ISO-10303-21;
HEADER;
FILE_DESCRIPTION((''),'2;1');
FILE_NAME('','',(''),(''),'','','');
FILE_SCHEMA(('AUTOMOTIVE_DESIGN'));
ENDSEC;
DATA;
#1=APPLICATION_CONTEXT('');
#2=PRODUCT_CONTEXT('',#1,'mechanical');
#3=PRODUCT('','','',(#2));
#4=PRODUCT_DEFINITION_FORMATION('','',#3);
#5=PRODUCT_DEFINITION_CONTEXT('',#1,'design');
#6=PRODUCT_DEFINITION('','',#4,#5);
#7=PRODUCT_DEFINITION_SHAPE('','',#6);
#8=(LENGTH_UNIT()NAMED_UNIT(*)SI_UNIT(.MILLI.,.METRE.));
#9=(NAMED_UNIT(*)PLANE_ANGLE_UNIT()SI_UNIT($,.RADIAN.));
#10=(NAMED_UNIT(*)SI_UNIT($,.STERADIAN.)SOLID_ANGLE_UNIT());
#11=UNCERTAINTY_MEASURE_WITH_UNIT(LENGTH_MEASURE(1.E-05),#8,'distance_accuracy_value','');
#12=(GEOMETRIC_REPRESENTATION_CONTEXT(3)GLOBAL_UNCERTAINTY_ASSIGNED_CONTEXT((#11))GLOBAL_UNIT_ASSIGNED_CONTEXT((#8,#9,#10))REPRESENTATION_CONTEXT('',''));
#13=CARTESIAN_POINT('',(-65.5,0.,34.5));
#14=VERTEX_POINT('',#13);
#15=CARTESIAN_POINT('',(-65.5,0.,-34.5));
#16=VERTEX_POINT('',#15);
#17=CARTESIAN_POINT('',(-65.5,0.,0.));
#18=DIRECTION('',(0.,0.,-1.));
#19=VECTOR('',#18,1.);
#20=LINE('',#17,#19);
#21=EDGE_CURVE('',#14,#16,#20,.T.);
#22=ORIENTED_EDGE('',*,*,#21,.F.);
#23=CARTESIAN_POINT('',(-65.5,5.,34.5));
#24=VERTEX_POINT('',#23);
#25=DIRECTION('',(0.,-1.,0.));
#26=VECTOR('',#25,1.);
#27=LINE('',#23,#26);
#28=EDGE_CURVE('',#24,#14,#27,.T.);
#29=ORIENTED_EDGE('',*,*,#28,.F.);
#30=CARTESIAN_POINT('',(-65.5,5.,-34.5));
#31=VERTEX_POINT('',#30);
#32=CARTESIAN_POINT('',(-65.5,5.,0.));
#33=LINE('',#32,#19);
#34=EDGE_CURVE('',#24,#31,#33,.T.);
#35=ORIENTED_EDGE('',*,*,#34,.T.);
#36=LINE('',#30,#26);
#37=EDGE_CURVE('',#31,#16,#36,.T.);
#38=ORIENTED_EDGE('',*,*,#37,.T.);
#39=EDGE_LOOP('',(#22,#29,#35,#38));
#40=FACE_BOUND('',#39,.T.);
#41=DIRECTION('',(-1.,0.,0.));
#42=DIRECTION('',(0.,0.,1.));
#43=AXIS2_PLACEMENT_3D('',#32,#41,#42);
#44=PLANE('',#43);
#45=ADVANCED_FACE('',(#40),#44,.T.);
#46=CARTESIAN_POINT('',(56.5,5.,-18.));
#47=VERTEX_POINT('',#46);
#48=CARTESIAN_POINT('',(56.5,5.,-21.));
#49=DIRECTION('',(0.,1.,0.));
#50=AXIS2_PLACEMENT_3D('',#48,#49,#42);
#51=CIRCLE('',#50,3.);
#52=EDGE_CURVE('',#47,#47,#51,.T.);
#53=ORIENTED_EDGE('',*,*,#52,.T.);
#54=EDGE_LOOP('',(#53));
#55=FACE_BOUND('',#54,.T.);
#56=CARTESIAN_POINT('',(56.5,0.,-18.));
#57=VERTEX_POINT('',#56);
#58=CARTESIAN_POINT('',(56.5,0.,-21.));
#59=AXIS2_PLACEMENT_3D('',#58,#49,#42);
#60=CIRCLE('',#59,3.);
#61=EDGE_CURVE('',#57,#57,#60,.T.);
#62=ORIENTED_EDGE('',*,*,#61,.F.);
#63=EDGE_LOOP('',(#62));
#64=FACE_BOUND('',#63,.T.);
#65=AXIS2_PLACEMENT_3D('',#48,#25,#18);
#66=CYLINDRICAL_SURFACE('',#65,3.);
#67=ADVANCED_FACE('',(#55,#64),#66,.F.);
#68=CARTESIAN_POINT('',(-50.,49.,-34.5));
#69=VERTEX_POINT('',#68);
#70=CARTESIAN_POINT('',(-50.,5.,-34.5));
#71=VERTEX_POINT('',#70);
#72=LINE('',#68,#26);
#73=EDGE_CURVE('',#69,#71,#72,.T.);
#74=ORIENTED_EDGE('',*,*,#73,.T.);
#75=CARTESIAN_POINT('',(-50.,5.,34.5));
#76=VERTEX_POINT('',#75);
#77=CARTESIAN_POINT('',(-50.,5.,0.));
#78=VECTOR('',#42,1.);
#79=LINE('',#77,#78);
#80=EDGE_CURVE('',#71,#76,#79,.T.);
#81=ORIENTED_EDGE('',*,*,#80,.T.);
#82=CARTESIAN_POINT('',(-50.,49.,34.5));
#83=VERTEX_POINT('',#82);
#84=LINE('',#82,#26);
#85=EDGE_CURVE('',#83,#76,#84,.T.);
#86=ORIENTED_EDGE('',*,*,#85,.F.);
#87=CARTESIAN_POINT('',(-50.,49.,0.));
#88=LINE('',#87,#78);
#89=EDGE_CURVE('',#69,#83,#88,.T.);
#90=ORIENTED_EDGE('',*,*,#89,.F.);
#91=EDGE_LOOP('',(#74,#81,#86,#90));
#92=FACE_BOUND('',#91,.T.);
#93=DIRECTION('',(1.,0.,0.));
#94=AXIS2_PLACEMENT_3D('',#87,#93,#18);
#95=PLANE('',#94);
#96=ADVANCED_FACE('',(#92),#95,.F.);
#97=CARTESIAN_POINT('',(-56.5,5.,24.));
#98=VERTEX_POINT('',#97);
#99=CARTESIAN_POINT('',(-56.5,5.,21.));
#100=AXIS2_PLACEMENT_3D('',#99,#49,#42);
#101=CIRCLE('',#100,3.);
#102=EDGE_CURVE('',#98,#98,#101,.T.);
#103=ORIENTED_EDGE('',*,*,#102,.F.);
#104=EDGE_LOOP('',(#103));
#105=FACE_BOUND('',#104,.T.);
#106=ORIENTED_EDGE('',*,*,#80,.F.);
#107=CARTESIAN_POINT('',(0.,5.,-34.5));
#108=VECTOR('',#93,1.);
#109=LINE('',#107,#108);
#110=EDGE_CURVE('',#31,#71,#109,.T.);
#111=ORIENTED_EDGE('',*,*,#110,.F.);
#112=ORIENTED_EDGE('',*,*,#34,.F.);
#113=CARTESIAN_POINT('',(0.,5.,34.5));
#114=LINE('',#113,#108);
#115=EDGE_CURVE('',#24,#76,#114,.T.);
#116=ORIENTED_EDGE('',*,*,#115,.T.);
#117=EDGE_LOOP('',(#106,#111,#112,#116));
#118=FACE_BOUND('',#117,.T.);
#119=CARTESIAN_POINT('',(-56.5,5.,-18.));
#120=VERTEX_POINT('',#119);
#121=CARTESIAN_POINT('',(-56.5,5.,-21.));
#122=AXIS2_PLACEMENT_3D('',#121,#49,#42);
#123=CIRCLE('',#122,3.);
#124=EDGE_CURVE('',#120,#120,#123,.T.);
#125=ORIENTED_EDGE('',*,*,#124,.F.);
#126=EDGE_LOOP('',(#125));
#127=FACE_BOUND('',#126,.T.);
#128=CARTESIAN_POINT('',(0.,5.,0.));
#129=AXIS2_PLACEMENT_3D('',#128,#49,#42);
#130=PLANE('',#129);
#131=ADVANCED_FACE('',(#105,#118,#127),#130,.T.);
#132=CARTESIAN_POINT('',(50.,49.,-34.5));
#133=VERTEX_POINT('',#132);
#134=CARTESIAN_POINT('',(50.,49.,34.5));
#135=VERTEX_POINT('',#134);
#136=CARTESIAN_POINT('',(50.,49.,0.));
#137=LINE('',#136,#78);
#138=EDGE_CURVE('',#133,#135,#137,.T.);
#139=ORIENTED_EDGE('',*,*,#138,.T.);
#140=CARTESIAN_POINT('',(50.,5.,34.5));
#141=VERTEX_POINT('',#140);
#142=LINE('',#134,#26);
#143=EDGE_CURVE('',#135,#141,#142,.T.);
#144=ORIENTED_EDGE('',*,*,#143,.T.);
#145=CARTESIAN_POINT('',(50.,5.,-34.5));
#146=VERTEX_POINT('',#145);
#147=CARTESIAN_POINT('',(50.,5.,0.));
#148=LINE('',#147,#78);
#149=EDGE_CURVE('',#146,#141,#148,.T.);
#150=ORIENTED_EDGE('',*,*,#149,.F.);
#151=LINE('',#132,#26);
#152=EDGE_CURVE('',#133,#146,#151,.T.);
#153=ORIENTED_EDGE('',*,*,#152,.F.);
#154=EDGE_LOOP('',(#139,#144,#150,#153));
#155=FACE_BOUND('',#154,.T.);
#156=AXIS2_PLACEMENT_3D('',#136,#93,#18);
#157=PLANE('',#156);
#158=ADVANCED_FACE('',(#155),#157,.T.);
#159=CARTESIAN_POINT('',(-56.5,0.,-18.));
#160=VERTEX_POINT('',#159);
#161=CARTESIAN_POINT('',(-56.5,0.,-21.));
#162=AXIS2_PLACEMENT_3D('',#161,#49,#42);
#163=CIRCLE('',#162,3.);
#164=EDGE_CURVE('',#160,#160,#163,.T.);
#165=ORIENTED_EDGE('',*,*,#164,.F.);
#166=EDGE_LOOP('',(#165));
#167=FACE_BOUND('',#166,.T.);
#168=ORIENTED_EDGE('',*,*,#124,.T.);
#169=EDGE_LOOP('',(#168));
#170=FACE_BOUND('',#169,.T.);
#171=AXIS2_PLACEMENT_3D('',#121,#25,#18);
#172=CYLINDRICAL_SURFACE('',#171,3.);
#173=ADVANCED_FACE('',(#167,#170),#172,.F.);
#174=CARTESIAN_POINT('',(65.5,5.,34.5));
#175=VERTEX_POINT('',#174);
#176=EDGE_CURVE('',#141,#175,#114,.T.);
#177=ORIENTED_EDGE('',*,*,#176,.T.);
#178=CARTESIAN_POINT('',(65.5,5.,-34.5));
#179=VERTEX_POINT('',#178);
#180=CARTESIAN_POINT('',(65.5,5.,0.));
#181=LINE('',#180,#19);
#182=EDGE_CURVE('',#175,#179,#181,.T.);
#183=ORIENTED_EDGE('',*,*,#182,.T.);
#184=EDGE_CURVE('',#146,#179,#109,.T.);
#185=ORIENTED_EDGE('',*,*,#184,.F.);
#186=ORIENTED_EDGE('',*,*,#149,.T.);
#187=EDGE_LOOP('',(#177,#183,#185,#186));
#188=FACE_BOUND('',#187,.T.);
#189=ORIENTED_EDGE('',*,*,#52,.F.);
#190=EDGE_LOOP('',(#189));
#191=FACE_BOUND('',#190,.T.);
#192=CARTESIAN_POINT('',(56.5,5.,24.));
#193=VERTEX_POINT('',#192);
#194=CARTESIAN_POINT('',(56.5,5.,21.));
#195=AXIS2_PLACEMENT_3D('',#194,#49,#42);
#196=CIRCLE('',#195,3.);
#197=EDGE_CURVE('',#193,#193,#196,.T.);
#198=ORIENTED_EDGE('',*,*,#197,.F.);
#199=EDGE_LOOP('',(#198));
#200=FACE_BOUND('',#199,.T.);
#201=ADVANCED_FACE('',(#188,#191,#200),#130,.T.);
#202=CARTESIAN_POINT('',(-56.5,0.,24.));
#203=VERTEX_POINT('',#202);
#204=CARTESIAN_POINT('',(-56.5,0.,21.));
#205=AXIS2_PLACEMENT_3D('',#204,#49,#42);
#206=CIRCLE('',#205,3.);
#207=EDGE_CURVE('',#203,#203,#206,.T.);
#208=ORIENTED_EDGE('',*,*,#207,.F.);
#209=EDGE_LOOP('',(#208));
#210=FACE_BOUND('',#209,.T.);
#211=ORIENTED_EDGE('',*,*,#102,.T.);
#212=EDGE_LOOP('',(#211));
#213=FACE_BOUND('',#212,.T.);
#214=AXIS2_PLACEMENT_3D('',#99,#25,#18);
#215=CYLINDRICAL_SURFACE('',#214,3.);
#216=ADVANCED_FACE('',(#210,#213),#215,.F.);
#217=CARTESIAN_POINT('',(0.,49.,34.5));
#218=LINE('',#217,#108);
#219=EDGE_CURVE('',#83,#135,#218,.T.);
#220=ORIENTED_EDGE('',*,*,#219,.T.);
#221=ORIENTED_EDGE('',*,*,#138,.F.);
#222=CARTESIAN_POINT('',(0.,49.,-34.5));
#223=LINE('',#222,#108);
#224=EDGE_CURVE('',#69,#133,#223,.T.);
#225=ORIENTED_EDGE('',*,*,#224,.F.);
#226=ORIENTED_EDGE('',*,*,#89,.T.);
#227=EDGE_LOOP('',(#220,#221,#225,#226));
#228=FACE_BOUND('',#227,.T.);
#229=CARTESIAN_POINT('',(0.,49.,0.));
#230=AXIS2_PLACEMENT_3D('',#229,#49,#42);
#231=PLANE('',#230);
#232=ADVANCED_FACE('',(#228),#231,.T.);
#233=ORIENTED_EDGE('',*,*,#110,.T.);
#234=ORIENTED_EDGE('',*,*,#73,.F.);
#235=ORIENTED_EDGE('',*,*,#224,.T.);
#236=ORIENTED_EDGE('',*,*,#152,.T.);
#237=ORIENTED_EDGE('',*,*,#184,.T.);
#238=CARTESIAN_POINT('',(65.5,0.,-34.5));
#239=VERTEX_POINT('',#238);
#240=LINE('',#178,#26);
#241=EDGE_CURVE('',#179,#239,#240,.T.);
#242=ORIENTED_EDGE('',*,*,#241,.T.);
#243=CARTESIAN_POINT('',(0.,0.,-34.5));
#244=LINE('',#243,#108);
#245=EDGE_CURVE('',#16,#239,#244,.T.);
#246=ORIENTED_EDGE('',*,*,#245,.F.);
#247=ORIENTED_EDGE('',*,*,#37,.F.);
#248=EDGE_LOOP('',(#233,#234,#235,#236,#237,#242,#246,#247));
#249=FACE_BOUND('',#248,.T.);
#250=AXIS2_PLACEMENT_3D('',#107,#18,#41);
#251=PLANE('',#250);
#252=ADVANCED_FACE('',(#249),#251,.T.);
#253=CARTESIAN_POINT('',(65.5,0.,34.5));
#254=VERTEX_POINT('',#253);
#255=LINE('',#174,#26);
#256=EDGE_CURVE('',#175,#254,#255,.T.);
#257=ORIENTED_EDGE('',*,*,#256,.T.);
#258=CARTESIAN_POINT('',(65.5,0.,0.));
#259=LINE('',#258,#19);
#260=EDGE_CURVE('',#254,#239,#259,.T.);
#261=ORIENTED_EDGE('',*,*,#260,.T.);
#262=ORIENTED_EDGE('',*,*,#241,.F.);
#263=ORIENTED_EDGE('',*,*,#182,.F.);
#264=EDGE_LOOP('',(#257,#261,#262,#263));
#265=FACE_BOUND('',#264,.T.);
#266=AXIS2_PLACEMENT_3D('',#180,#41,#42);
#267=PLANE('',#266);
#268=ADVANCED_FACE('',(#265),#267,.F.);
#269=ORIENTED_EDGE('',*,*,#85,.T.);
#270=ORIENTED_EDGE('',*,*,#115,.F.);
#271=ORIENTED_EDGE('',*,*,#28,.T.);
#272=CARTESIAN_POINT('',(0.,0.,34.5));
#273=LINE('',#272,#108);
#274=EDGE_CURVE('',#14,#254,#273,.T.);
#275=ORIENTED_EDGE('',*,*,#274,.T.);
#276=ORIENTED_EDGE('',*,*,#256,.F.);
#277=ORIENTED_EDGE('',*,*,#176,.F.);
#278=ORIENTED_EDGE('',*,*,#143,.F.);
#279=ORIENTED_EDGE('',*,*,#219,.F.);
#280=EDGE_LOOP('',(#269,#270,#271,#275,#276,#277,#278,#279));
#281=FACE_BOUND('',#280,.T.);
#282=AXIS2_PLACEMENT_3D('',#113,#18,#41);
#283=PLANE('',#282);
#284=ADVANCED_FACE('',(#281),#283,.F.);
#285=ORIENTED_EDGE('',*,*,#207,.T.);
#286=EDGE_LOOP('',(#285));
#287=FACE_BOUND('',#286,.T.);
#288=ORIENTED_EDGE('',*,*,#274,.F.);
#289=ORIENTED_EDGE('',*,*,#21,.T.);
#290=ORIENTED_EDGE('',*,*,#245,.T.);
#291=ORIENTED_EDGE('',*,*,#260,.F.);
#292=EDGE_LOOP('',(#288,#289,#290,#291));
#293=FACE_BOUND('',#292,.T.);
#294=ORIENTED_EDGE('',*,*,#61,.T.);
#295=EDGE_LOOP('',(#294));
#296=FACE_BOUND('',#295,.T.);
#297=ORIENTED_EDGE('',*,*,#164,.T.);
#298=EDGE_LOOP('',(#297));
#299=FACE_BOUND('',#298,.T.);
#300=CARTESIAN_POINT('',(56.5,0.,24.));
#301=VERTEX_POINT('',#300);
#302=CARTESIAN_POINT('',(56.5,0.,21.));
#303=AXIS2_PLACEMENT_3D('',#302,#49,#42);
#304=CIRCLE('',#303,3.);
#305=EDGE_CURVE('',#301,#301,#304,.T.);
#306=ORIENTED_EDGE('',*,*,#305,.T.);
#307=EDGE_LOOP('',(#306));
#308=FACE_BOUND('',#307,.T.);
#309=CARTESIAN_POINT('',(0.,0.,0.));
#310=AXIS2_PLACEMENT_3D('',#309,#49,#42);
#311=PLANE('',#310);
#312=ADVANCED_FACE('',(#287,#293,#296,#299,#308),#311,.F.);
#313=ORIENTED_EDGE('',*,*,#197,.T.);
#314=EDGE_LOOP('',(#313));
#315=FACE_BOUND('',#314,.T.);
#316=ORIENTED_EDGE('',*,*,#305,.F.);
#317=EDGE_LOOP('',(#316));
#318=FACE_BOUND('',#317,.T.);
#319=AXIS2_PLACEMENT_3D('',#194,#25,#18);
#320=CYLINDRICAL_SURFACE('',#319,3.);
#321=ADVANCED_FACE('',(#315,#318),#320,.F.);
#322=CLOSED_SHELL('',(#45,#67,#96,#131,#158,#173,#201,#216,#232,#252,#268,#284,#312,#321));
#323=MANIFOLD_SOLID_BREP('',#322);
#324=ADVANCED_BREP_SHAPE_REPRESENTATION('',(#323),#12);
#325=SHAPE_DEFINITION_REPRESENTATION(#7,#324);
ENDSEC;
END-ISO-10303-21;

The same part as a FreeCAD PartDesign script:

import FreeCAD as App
import Part
import Sketcher


def add_polygon(sketch, points):
    """Adds a closed chain of lines whose ends are joined by coincident constraints."""
    first, n = sketch.GeometryCount, len(points)
    for a, b in zip(points, points[1:] + points[:1]):
        sketch.addGeometry(Part.LineSegment(App.Vector(*a, 0), App.Vector(*b, 0)), False)
    for i in range(n):
        sketch.addConstraint(Sketcher.Constraint("Coincident", first + i, 2, first + (i + 1) % n, 1))

doc = App.newDocument("Part")
params = doc.addObject("Spreadsheet::Sheet", "Params")
for row, (alias, value) in enumerate([
    ("sketch1_diameter", "6 mm"),
    ("sketch1_height", "69 mm"),
    ("sketch1_width", "15.5 mm"),
    ("pad1_length", "5 mm"),
    ("sketch2_diameter", "6 mm"),
    ("sketch2_height", "69 mm"),
    ("sketch2_width", "15.5 mm"),
    ("pad2_length", "5 mm"),
    ("sketch3_width", "100 mm"),
    ("sketch3_height", "69 mm"),
    ("pad3_length", "49 mm"),
], start=1):
    params.set(f"A{row}", alias)
    params.set(f"B{row}", "=" + value)
    params.setAlias(f"B{row}", alias)

body = doc.addObject("PartDesign::Body", "Body")

# Sketch on XZ plane
sketch1 = body.newObject("Sketcher::SketchObject", "Sketch")
sketch1.AttachmentSupport = (doc.getObject("XZ_Plane"), [""])
sketch1.MapMode = "FlatFace"
add_polygon(sketch1, [(-65.5, -34.5), (-65.5, 34.5), (-50, 34.5), (-50, -34.5)])  # lines 0-3
sketch1.addGeometry(Part.Circle(App.Vector(-56.5, 21, 0), App.Vector(0, 0, 1), 3), False)  # 4
sketch1.addGeometry(Part.Circle(App.Vector(-56.5, -21, 0), App.Vector(0, 0, 1), 3), False)  # 5
sketch1.addConstraint([
    Sketcher.Constraint("Vertical", 0),
    Sketcher.Constraint("Horizontal", 1),
    Sketcher.Constraint("Vertical", 2),
    Sketcher.Constraint("Horizontal", 3),
    Sketcher.Constraint("Equal", 4, 5),
    Sketcher.Constraint("Symmetric", 4, 3, 5, 3, -1),
    Sketcher.Constraint("Diameter", 4, 6.0),
    Sketcher.Constraint("DistanceY", 0, 1, 0, 2, 69.0),
    Sketcher.Constraint("DistanceX", 1, 1, 1, 2, 15.5),
    Sketcher.Constraint("DistanceY", -1, 1, 4, 3, 21.0),
    Sketcher.Constraint("DistanceX", 1, 2, -1, 1, 50.0),
    Sketcher.Constraint("DistanceX", 0, 2, 4, 3, 9.0),
    Sketcher.Constraint("DistanceY", -1, 1, 0, 2, 34.5),
])
sketch1.setExpression("Constraints[10]", "Params.sketch1_diameter")
sketch1.setExpression("Constraints[11]", "Params.sketch1_height")
sketch1.setExpression("Constraints[12]", "Params.sketch1_width")
pad1 = body.newObject("PartDesign::Pad", "Pad")
pad1.Profile = sketch1
pad1.setExpression("Length", "Params.pad1_length")
pad1.Reversed = True
body2 = doc.addObject("PartDesign::Body", "Body001")

# Sketch on XZ plane
sketch2 = body2.newObject("Sketcher::SketchObject", "Sketch001")
sketch2.AttachmentSupport = (doc.getObject("XZ_Plane001"), [""])
sketch2.MapMode = "FlatFace"
add_polygon(sketch2, [(50, -34.5), (50, 34.5), (65.5, 34.5), (65.5, -34.5)])  # lines 0-3
sketch2.addGeometry(Part.Circle(App.Vector(56.5, 21, 0), App.Vector(0, 0, 1), 3), False)  # 4
sketch2.addGeometry(Part.Circle(App.Vector(56.5, -21, 0), App.Vector(0, 0, 1), 3), False)  # 5
sketch2.addConstraint([
    Sketcher.Constraint("Vertical", 0),
    Sketcher.Constraint("Horizontal", 1),
    Sketcher.Constraint("Vertical", 2),
    Sketcher.Constraint("Horizontal", 3),
    Sketcher.Constraint("Equal", 4, 5),
    Sketcher.Constraint("Symmetric", 4, 3, 5, 3, -1),
    Sketcher.Constraint("Diameter", 4, 6.0),
    Sketcher.Constraint("DistanceY", 0, 1, 0, 2, 69.0),
    Sketcher.Constraint("DistanceX", 1, 1, 1, 2, 15.5),
    Sketcher.Constraint("DistanceY", -1, 1, 4, 3, 21.0),
    Sketcher.Constraint("DistanceX", -1, 1, 0, 2, 50.0),
    Sketcher.Constraint("DistanceX", 4, 3, 1, 2, 9.0),
    Sketcher.Constraint("DistanceY", -1, 1, 0, 2, 34.5),
])
sketch2.setExpression("Constraints[10]", "Params.sketch2_diameter")
sketch2.setExpression("Constraints[11]", "Params.sketch2_height")
sketch2.setExpression("Constraints[12]", "Params.sketch2_width")
pad2 = body2.newObject("PartDesign::Pad", "Pad001")
pad2.Profile = sketch2
pad2.setExpression("Length", "Params.pad2_length")
pad2.Reversed = True
body.AllowCompound = True
doc.recompute()

boolean = body.newObject("PartDesign::Boolean", "Boolean")
boolean.Type = "Fuse"
boolean.addObjects([body2])

# Sketch on XZ plane
sketch3 = body.newObject("Sketcher::SketchObject", "Sketch002")
sketch3.AttachmentSupport = (doc.getObject("XZ_Plane"), [""])
sketch3.MapMode = "FlatFace"
add_polygon(sketch3, [(-50, -34), (-50, 34), (50, 34), (50, -34)])  # lines 0-3
sketch3.addConstraint([
    Sketcher.Constraint("Vertical", 0),
    Sketcher.Constraint("Horizontal", 1),
    Sketcher.Constraint("Vertical", 2),
    Sketcher.Constraint("Horizontal", 3),
    Sketcher.Constraint("Symmetric", 0, 2, 2, 2, -1, 1),
    Sketcher.Constraint("DistanceX", 1, 1, 1, 2, 100.0),
    Sketcher.Constraint("DistanceY", 0, 1, 0, 2, 69.0),
])
sketch3.setExpression("Constraints[9]", "Params.sketch3_width")
sketch3.setExpression("Constraints[10]", "Params.sketch3_height")
pad3 = body.newObject("PartDesign::Pad", "Pad002")
pad3.Profile = sketch3
pad3.setExpression("Length", "Params.pad3_length")
pad3.Reversed = True

doc.recompute()
